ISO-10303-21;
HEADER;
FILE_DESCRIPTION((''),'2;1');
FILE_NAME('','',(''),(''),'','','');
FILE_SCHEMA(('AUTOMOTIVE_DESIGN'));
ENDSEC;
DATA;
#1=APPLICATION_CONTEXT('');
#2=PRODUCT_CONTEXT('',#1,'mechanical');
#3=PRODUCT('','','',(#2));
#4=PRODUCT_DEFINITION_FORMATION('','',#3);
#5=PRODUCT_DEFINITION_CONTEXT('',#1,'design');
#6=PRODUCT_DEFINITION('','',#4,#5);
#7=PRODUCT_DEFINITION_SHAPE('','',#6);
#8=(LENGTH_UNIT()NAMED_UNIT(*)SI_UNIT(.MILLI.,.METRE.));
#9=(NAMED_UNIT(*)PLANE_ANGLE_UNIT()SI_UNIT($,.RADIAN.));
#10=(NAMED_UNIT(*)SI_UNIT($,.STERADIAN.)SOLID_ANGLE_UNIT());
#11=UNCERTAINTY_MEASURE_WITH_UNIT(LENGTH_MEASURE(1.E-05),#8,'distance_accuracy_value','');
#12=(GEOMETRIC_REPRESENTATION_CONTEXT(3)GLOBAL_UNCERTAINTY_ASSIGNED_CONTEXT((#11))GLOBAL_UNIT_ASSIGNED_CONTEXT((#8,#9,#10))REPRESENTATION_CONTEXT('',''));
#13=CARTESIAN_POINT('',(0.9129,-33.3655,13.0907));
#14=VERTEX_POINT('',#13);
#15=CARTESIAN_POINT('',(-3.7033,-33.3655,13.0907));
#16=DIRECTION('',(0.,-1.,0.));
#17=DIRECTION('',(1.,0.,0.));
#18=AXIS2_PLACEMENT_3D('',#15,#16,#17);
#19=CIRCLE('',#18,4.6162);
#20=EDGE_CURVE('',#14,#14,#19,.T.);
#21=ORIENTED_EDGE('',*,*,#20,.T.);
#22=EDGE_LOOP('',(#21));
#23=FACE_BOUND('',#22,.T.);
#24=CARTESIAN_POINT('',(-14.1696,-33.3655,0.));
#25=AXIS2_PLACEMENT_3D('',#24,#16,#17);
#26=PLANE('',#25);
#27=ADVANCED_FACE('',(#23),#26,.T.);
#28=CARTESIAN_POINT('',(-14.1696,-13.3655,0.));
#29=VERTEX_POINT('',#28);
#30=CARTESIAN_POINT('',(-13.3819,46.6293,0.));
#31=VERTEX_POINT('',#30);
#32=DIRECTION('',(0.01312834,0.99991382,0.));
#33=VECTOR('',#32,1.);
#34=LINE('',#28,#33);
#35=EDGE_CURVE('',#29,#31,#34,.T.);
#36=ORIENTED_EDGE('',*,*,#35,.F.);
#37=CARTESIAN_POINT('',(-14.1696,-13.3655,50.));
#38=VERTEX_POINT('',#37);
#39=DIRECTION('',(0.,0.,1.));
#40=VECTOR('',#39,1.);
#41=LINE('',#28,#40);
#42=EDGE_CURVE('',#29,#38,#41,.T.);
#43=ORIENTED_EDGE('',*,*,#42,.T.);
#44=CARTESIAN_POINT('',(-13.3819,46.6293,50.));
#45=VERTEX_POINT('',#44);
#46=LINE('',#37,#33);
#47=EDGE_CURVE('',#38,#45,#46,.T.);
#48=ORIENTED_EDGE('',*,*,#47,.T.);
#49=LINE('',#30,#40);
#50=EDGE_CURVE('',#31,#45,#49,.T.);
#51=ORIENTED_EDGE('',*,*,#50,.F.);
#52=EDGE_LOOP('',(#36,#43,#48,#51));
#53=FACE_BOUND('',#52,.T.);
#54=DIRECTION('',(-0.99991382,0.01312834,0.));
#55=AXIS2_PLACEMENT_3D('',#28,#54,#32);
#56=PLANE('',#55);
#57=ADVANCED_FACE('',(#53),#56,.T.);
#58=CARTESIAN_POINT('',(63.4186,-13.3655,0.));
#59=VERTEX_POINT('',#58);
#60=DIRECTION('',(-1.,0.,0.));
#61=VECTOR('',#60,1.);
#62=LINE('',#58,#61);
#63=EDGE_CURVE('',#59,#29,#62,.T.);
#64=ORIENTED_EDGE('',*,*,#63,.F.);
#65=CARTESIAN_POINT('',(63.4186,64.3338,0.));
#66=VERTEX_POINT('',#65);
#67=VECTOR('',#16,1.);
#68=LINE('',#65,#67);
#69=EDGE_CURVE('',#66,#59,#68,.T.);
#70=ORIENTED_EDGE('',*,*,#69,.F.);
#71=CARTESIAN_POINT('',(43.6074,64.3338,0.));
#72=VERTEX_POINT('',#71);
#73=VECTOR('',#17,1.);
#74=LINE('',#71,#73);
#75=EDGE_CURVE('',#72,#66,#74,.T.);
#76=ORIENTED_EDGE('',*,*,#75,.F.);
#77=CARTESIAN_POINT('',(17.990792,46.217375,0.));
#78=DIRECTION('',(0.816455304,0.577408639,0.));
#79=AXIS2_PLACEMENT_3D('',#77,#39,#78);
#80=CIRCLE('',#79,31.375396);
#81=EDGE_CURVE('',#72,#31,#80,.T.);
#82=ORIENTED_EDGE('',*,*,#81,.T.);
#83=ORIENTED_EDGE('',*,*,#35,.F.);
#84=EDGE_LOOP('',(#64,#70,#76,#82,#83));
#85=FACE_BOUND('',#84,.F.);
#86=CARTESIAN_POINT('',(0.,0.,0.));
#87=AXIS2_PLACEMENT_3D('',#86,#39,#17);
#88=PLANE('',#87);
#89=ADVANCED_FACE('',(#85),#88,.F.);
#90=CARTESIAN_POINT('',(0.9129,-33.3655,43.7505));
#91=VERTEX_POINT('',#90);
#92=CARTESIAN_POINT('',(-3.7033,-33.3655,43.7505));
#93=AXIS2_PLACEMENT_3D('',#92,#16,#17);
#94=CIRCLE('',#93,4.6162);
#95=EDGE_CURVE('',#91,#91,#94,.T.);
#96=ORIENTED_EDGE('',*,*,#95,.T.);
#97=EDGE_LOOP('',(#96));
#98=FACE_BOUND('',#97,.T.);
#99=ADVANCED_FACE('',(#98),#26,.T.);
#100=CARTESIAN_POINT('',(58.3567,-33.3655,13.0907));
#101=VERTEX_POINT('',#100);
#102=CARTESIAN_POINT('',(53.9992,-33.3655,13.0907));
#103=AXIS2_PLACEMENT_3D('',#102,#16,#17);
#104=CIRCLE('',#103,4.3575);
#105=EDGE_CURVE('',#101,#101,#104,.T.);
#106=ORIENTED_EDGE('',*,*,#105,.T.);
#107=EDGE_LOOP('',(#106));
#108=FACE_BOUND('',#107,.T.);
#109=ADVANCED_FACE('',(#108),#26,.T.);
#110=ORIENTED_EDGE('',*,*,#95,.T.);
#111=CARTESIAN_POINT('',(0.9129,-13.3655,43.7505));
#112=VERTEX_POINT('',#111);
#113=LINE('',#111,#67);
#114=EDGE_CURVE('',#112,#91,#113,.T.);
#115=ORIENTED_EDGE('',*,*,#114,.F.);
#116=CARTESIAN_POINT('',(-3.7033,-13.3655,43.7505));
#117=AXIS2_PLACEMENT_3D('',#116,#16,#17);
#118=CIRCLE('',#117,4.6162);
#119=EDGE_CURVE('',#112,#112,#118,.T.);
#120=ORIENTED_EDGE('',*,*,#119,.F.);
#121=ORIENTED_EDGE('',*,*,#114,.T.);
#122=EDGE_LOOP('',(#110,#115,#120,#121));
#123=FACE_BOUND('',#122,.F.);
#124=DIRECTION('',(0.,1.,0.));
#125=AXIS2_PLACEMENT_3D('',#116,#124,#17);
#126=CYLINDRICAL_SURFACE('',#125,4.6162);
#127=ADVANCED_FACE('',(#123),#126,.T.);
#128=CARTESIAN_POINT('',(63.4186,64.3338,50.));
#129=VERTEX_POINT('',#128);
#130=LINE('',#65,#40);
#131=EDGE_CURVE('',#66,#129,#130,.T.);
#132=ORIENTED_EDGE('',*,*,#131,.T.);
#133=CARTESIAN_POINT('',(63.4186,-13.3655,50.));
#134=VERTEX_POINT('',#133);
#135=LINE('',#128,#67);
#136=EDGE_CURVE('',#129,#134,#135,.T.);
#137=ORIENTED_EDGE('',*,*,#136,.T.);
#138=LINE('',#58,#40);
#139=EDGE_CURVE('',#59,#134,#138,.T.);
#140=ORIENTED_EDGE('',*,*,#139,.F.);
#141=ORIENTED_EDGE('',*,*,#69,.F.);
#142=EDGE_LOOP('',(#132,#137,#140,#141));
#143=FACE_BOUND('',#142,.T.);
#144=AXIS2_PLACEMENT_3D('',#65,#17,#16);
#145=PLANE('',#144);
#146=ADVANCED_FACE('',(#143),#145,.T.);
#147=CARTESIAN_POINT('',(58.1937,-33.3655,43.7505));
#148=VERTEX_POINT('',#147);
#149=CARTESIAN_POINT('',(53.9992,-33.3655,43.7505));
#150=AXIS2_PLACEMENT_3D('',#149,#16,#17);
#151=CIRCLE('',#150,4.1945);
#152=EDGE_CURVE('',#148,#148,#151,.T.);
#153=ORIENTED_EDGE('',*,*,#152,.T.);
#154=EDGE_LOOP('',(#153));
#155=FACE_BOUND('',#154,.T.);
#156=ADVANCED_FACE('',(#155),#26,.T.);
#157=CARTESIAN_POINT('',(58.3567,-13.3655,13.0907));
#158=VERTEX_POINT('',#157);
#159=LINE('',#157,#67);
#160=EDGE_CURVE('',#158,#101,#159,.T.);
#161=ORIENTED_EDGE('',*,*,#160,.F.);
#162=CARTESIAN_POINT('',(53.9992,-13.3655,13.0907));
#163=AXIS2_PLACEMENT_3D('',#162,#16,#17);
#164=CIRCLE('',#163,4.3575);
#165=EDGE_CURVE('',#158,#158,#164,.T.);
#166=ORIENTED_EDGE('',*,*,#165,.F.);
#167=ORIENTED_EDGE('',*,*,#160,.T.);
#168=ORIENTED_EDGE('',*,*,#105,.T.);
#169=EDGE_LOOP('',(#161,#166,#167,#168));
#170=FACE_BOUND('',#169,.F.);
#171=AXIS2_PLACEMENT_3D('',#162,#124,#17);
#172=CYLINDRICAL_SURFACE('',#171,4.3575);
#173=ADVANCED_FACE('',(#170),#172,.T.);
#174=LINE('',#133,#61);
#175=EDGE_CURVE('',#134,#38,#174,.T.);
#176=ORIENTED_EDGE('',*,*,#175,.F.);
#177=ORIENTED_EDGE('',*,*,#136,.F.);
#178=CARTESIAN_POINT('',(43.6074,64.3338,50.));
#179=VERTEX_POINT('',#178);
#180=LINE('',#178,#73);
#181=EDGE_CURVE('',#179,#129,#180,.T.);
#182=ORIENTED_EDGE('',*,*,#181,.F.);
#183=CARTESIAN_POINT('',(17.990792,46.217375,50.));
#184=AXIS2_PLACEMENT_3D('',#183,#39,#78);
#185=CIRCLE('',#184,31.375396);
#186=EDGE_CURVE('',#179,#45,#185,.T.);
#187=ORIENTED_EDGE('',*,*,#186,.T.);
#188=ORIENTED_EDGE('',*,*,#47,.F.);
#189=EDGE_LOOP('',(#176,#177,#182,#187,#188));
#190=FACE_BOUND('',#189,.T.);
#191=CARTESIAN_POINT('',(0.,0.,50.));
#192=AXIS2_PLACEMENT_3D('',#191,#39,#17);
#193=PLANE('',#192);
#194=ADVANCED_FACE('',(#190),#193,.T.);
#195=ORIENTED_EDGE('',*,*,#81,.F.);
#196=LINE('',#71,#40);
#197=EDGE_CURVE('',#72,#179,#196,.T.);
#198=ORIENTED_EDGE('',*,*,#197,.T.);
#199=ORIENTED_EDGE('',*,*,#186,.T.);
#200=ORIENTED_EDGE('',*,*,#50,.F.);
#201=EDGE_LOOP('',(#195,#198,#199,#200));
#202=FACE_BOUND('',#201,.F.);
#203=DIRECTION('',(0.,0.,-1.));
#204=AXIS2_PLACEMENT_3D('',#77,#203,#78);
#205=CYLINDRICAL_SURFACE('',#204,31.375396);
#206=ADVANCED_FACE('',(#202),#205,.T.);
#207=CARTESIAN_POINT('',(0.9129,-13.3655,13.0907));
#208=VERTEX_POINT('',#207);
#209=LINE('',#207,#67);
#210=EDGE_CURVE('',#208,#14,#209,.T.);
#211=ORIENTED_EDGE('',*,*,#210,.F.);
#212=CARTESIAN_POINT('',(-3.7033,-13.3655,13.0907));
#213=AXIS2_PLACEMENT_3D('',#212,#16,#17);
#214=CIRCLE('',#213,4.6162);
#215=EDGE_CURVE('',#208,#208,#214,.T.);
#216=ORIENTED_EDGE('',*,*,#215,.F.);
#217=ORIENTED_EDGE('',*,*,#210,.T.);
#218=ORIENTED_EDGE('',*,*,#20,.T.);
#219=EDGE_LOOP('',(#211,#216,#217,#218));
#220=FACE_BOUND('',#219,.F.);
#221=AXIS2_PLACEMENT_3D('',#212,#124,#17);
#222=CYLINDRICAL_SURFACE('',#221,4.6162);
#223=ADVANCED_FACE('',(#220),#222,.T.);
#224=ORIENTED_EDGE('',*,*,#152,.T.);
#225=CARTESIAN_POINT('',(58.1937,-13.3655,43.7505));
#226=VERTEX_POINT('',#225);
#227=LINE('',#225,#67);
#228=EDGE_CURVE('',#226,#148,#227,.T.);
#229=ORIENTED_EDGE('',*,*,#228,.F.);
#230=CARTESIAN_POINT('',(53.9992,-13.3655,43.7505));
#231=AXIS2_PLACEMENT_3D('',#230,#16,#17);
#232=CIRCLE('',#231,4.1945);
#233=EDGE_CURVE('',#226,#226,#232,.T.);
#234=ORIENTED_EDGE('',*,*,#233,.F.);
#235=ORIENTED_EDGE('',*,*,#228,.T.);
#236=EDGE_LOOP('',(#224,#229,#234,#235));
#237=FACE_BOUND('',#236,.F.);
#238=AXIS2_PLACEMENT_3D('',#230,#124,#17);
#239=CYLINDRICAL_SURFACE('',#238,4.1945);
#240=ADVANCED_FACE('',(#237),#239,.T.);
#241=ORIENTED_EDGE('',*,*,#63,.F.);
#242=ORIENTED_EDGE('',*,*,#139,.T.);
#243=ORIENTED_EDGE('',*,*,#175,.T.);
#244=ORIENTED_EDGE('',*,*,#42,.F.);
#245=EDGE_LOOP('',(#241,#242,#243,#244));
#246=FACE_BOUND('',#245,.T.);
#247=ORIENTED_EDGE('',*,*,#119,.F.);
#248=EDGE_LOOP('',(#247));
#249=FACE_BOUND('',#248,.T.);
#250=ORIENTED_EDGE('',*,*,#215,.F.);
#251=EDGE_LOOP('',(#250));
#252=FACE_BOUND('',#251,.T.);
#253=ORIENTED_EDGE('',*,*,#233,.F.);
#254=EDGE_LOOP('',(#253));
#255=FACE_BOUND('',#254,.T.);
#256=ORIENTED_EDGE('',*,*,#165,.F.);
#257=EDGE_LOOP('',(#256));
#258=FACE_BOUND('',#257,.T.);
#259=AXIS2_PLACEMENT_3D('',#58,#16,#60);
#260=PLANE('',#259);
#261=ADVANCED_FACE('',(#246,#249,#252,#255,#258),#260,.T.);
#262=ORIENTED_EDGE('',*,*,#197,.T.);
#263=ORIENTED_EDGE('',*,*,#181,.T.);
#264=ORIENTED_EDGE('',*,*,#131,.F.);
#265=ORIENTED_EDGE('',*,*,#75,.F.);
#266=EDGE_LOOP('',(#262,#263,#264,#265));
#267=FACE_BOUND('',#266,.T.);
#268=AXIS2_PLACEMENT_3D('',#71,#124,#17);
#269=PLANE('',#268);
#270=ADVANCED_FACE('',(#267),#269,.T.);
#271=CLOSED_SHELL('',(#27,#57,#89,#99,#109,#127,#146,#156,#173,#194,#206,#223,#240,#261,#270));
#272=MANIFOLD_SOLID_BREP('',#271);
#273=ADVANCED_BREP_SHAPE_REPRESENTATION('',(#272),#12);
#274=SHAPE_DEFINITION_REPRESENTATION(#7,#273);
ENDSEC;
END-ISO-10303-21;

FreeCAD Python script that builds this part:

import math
import FreeCAD as App
import Part
import Sketcher

V = App.Vector

doc = App.newDocument("Part")
params = doc.addObject("Spreadsheet::Sheet", "Params")
for row, (alias, value) in enumerate([
    ("sketch1_length", "60 mm"),
    ("pad1_length", "50 mm"),
    ("pad2_length", "20 mm"),
], start=1):
    params.set(f"A{row}", alias)
    params.set(f"B{row}", "=" + value)
    params.setAlias(f"B{row}", alias)

body = doc.addObject("PartDesign::Body", "Body")

# Sketch on XY plane
sketch1 = doc.addObject("Sketcher::SketchObject", "Sketch")
body.addObject(sketch1)
sketch1.AttachmentSupport = (doc.XY_Plane, [""])
sketch1.MapMode = "FlatFace"
sketch1.addGeometry([
    Part.LineSegment(V(-13.3819, 46.6293, 0), V(-14.1696, -13.3655, 0)),  # 0
    Part.LineSegment(V(-14.1696, -13.3655, 0), V(63.4186, -13.3655, 0)),  # 1
    Part.LineSegment(V(63.4186, -13.3655, 0), V(63.4186, 64.3338, 0)),  # 2
    Part.LineSegment(V(63.4186, 64.3338, 0), V(43.6074, 64.3338, 0)),  # 3
    Part.ArcOfCircle(Part.Circle(V(17.9908, 46.2174, 0), V(0, 0, 1), 31.375375), math.radians(35.268458), math.radians(179.247793)),  # 4
], False)
sketch1.addConstraint([
    Sketcher.Constraint("Coincident", 0, 2, 1, 1),
    Sketcher.Constraint("Coincident", 1, 2, 2, 1),
    Sketcher.Constraint("Coincident", 2, 2, 3, 1),
    Sketcher.Constraint("Coincident", 3, 2, 4, 1),
    Sketcher.Constraint("Tangent", 4, 2, 0, 1),
    Sketcher.Constraint("Horizontal", 1),
    Sketcher.Constraint("Vertical", 2),
    Sketcher.Constraint("Horizontal", 3),
    Sketcher.Constraint("Distance", 0, 60.0),
    Sketcher.Constraint("Radius", 4, 31.3754),
    Sketcher.Constraint("DistanceX", 1, 1, 1, 2, 77.5882),
    Sketcher.Constraint("DistanceX", 3, 2, 3, 1, 19.8112),
    Sketcher.Constraint("DistanceY", 2, 1, 2, 2, 77.6993),
    Sketcher.Constraint("DistanceX", -1, 1, 4, 3, 17.9908),
    Sketcher.Constraint("DistanceY", -1, 1, 4, 3, 46.2174),
])
sketch1.setExpression("Constraints[8]", "Params.sketch1_length")
pad1 = doc.addObject("PartDesign::Pad", "Pad")
body.addObject(pad1)
pad1.Profile = sketch1
pad1.setExpression("Length", "Params.pad1_length")

# Sketch on XZ plane
sketch2 = doc.addObject("Sketcher::SketchObject", "Sketch001")
body.addObject(sketch2)
sketch2.AttachmentSupport = (doc.XZ_Plane, [""])
sketch2.MapMode = "FlatFace"
sketch2.AttachmentOffset = App.Placement(V(0, 0, 13.3655), App.Rotation())
sketch2.addGeometry([
    Part.Circle(V(53.9992, 43.7505, 0), V(0, 0, 1), 4.1945),
    Part.Circle(V(53.9992, 13.0907, 0), V(0, 0, 1), 4.3575),
    Part.Circle(V(-3.7033, 43.7505, 0), V(0, 0, 1), 4.6162),
    Part.Circle(V(-3.7033, 13.0907, 0), V(0, 0, 1), 4.6162),
], False)
sketch2.addConstraint([
    Sketcher.Constraint("Equal", 2, 3),
    Sketcher.Constraint("Horizontal", 0, 3, 2, 3),
    Sketcher.Constraint("Horizontal", 1, 3, 3, 3),
    Sketcher.Constraint("Vertical", 0, 3, 1, 3),
    Sketcher.Constraint("Vertical", 2, 3, 3, 3),
    Sketcher.Constraint("Diameter", 0, 8.389),
    Sketcher.Constraint("Diameter", 1, 8.715),
    Sketcher.Constraint("Diameter", 2, 9.2324),
    Sketcher.Constraint("DistanceX", -1, 1, 0, 3, 53.9992),
    Sketcher.Constraint("DistanceY", -1, 1, 0, 3, 43.7505),
    Sketcher.Constraint("DistanceY", -1, 1, 1, 3, 13.0907),
    Sketcher.Constraint("DistanceX", 2, 3, -1, 1, 3.7033),
])
pad2 = doc.addObject("PartDesign::Pad", "Pad001")
body.addObject(pad2)
pad2.Profile = sketch2
pad2.setExpression("Length", "Params.pad2_length")

doc.recompute()
